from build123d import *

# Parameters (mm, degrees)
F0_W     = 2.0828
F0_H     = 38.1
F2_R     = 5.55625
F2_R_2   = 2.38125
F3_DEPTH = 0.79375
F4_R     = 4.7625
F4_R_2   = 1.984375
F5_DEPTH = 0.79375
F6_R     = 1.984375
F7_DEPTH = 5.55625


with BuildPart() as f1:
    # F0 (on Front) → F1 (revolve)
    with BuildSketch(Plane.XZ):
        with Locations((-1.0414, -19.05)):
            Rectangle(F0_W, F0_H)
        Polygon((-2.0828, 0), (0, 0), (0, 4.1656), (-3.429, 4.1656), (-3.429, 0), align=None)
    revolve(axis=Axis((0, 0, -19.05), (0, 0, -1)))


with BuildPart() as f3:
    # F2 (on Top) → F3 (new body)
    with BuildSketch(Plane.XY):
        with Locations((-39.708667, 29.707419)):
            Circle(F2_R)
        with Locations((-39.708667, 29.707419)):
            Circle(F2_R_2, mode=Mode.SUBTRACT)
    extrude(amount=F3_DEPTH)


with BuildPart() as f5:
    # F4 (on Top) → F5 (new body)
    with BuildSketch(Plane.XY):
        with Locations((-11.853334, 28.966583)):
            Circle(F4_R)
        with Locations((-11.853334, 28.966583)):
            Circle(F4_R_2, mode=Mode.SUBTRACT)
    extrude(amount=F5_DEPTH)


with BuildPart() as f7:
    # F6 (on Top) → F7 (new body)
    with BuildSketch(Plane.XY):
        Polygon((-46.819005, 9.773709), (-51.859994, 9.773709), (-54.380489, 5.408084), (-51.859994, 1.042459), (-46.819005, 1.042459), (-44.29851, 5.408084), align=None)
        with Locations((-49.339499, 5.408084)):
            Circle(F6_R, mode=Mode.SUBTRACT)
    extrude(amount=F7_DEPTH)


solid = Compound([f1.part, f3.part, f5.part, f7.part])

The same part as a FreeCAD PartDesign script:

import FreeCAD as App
import Part
import Sketcher
Q = App.Units.Quantity

doc = App.newDocument("Part")
params = doc.addObject("Spreadsheet::Sheet", "Params")
for row, (alias, value) in enumerate([
    ("sketch1_height", "1.5 in"),
    ("sketch1_width", "0.082 in"),
    ("sketch1_width2", "0.135 in"),
    ("sketch1_height2", "1.664 in"),
    ("revolution_angle", "360 deg"),
    ("sketch2_diameter", "0.4375 in"),
    ("sketch2_diameter2", "0.1875 in"),
    ("pad1_length", "0.03125 in"),
    ("sketch3_diameter", "0.375 in"),
    ("sketch3_diameter2", "0.15625 in"),
    ("pad2_length", "0.03125 in"),
    ("sketch4_diameter", "0.15625 in"),
    ("pad3_length", "0.21875 in"),
], start=1):
    params.set(f"A{row}", alias)
    params.set(f"B{row}", "=" + value)
    params.setAlias(f"B{row}", alias)

body = doc.addObject("PartDesign::Body", "Body")

# Sketch on XZ plane
sketch1 = body.newObject("Sketcher::SketchObject", "Sketch")
sketch1.AttachmentSupport = (doc.getObject("XZ_Plane"), [""])
sketch1.MapMode = "FlatFace"
sketch1.addGeometry([
    Part.LineSegment(App.Vector(-2.1, 0, 0), App.Vector(-2.1, -38.1, 0)),  # 0
    Part.LineSegment(App.Vector(-2.1, -38.1, 0), App.Vector(0, -38.1, 0)),  # 1
    Part.LineSegment(App.Vector(0, -38.1, 0), App.Vector(0, 4.2, 0)),  # 2
    Part.LineSegment(App.Vector(0, 4.2, 0), App.Vector(-3.4, 4.2, 0)),  # 3
    Part.LineSegment(App.Vector(-3.4, 4.2, 0), App.Vector(-3.4, 0, 0)),  # 4
    Part.LineSegment(App.Vector(-3.4, 0, 0), App.Vector(-2.1, 0, 0)),  # 5
], False)
sketch1.addConstraint([
    Sketcher.Constraint("Coincident", 0, 2, 1, 1),
    Sketcher.Constraint("Coincident", 1, 2, 2, 1),
    Sketcher.Constraint("Coincident", 2, 2, 3, 1),
    Sketcher.Constraint("Coincident", 3, 2, 4, 1),
    Sketcher.Constraint("Coincident", 4, 2, 5, 1),
    Sketcher.Constraint("Coincident", 5, 2, 0, 1),
    Sketcher.Constraint("Vertical", 0),
    Sketcher.Constraint("Horizontal", 1),
    Sketcher.Constraint("Vertical", 2),
    Sketcher.Constraint("Horizontal", 3),
    Sketcher.Constraint("Vertical", 4),
    Sketcher.Constraint("Horizontal", 5),
    Sketcher.Constraint("PointOnObject", 1, 2, -2),
    Sketcher.Constraint("PointOnObject", 4, 2, -1),
    Sketcher.Constraint("DistanceY", 0, 2, 0, 1, Q("1.5 in")),
    Sketcher.Constraint("DistanceX", 1, 1, 1, 2, Q("0.082 in")),
    Sketcher.Constraint("DistanceX", 3, 2, 3, 1, Q("0.135 in")),
    Sketcher.Constraint("DistanceY", 2, 1, 2, 2, Q("1.664 in")),
])
sketch1.setExpression("Constraints[14]", "Params.sketch1_height")
sketch1.setExpression("Constraints[15]", "Params.sketch1_width")
sketch1.setExpression("Constraints[16]", "Params.sketch1_width2")
sketch1.setExpression("Constraints[17]", "Params.sketch1_height2")
revolution = body.newObject("PartDesign::Revolution", "Revolution")
revolution.Profile = sketch1
revolution.ReferenceAxis = (sketch1, ["V_Axis"])
revolution.setExpression("Angle", "Params.revolution_angle")
body2 = doc.addObject("PartDesign::Body", "Body001")

# Sketch on XY plane
sketch2 = body2.newObject("Sketcher::SketchObject", "Sketch001")
sketch2.AttachmentSupport = (doc.getObject("XY_Plane001"), [""])
sketch2.MapMode = "FlatFace"
sketch2.addGeometry([
    Part.Circle(App.Vector(-39.7, 29.7, 0), App.Vector(0, 0, 1), 5.6),
    Part.Circle(App.Vector(-39.7, 29.7, 0), App.Vector(0, 0, 1), 2.4),
], False)
sketch2.addConstraint([
    Sketcher.Constraint("Coincident", 1, 3, 0, 3),
    Sketcher.Constraint("Diameter", 0, Q("0.4375 in")),
    Sketcher.Constraint("Diameter", 1, Q("0.1875 in")),
    Sketcher.Constraint("DistanceY", -1, 1, 0, 3, 29.707419),
    Sketcher.Constraint("DistanceX", 0, 3, -1, 1, 39.708667),
])
sketch2.setExpression("Constraints[1]", "Params.sketch2_diameter")
sketch2.setExpression("Constraints[2]", "Params.sketch2_diameter2")
pad1 = body2.newObject("PartDesign::Pad", "Pad")
pad1.Profile = sketch2
pad1.setExpression("Length", "Params.pad1_length")
body3 = doc.addObject("PartDesign::Body", "Body002")

# Sketch on XY plane
sketch3 = body3.newObject("Sketcher::SketchObject", "Sketch002")
sketch3.AttachmentSupport = (doc.getObject("XY_Plane002"), [""])
sketch3.MapMode = "FlatFace"
sketch3.addGeometry([
    Part.Circle(App.Vector(-11.9, 29, 0), App.Vector(0, 0, 1), 4.8),
    Part.Circle(App.Vector(-11.9, 29, 0), App.Vector(0, 0, 1), 2),
], False)
sketch3.addConstraint([
    Sketcher.Constraint("Coincident", 1, 3, 0, 3),
    Sketcher.Constraint("Diameter", 0, Q("0.375 in")),
    Sketcher.Constraint("Diameter", 1, Q("0.15625 in")),
    Sketcher.Constraint("DistanceX", 0, 3, -1, 1, 11.853334),
    Sketcher.Constraint("DistanceY", -1, 1, 0, 3, 28.966583),
])
sketch3.setExpression("Constraints[1]", "Params.sketch3_diameter")
sketch3.setExpression("Constraints[2]", "Params.sketch3_diameter2")
pad2 = body3.newObject("PartDesign::Pad", "Pad001")
pad2.Profile = sketch3
pad2.setExpression("Length", "Params.pad2_length")
body4 = doc.addObject("PartDesign::Body", "Body003")

# Sketch on XY plane
sketch4 = body4.newObject("Sketcher::SketchObject", "Sketch003")
sketch4.AttachmentSupport = (doc.getObject("XY_Plane003"), [""])
sketch4.MapMode = "FlatFace"
sketch4.addGeometry([
    Part.LineSegment(App.Vector(-46.8, 9.8, 0), App.Vector(-51.9, 9.8, 0)),  # 0
    Part.LineSegment(App.Vector(-51.9, 9.8, 0), App.Vector(-54.4, 5.4, 0)),  # 1
    Part.LineSegment(App.Vector(-54.4, 5.4, 0), App.Vector(-51.9, 1, 0)),  # 2
    Part.LineSegment(App.Vector(-51.9, 1, 0), App.Vector(-46.8, 1, 0)),  # 3
    Part.LineSegment(App.Vector(-46.8, 1, 0), App.Vector(-44.3, 5.4, 0)),  # 4
    Part.LineSegment(App.Vector(-44.3, 5.4, 0), App.Vector(-46.8, 9.8, 0)),  # 5
    Part.Circle(App.Vector(-49.3, 5.4, 0), App.Vector(0, 0, 1), 2),  # 6
], False)
sketch4.addConstraint([
    Sketcher.Constraint("Coincident", 0, 2, 1, 1),
    Sketcher.Constraint("Coincident", 1, 2, 2, 1),
    Sketcher.Constraint("Coincident", 2, 2, 3, 1),
    Sketcher.Constraint("Coincident", 3, 2, 4, 1),
    Sketcher.Constraint("Coincident", 4, 2, 5, 1),
    Sketcher.Constraint("Coincident", 5, 2, 0, 1),
    Sketcher.Constraint("Horizontal", 0),
    Sketcher.Constraint("Horizontal", 3),
    Sketcher.Constraint("Parallel", 1, 4),
    Sketcher.Constraint("Parallel", 2, 5),
    Sketcher.Constraint("Horizontal", 6, 3, 1, 2),
    Sketcher.Constraint("Horizontal", 1, 2, 4, 2),
    Sketcher.Constraint("Vertical", 0, 2, 2, 2),
    Sketcher.Constraint("Vertical", 3, 2, 5, 2),
    Sketcher.Constraint("Diameter", 6, Q("0.15625 in")),
    Sketcher.Constraint("Angle", 1, Q("-120.000002 deg")),
    Sketcher.Constraint("DistanceY", 6, 3, 0, 2, Q("0.171875 in")),
    Sketcher.Constraint("DistanceX", 6, 3, -1, 1, Q("1.9425 in")),
    Sketcher.Constraint("DistanceX", 0, 2, 0, 1, 5.040989),
    Sketcher.Constraint("DistanceY", -1, 1, 0, 2, 9.773709),
    Sketcher.Constraint("DistanceX", 1, 2, -1, 1, 54.380489),
])
sketch4.setExpression("Constraints[14]", "Params.sketch4_diameter")
pad3 = body4.newObject("PartDesign::Pad", "Pad002")
pad3.Profile = sketch4
pad3.setExpression("Length", "Params.pad3_length")

doc.recompute()
